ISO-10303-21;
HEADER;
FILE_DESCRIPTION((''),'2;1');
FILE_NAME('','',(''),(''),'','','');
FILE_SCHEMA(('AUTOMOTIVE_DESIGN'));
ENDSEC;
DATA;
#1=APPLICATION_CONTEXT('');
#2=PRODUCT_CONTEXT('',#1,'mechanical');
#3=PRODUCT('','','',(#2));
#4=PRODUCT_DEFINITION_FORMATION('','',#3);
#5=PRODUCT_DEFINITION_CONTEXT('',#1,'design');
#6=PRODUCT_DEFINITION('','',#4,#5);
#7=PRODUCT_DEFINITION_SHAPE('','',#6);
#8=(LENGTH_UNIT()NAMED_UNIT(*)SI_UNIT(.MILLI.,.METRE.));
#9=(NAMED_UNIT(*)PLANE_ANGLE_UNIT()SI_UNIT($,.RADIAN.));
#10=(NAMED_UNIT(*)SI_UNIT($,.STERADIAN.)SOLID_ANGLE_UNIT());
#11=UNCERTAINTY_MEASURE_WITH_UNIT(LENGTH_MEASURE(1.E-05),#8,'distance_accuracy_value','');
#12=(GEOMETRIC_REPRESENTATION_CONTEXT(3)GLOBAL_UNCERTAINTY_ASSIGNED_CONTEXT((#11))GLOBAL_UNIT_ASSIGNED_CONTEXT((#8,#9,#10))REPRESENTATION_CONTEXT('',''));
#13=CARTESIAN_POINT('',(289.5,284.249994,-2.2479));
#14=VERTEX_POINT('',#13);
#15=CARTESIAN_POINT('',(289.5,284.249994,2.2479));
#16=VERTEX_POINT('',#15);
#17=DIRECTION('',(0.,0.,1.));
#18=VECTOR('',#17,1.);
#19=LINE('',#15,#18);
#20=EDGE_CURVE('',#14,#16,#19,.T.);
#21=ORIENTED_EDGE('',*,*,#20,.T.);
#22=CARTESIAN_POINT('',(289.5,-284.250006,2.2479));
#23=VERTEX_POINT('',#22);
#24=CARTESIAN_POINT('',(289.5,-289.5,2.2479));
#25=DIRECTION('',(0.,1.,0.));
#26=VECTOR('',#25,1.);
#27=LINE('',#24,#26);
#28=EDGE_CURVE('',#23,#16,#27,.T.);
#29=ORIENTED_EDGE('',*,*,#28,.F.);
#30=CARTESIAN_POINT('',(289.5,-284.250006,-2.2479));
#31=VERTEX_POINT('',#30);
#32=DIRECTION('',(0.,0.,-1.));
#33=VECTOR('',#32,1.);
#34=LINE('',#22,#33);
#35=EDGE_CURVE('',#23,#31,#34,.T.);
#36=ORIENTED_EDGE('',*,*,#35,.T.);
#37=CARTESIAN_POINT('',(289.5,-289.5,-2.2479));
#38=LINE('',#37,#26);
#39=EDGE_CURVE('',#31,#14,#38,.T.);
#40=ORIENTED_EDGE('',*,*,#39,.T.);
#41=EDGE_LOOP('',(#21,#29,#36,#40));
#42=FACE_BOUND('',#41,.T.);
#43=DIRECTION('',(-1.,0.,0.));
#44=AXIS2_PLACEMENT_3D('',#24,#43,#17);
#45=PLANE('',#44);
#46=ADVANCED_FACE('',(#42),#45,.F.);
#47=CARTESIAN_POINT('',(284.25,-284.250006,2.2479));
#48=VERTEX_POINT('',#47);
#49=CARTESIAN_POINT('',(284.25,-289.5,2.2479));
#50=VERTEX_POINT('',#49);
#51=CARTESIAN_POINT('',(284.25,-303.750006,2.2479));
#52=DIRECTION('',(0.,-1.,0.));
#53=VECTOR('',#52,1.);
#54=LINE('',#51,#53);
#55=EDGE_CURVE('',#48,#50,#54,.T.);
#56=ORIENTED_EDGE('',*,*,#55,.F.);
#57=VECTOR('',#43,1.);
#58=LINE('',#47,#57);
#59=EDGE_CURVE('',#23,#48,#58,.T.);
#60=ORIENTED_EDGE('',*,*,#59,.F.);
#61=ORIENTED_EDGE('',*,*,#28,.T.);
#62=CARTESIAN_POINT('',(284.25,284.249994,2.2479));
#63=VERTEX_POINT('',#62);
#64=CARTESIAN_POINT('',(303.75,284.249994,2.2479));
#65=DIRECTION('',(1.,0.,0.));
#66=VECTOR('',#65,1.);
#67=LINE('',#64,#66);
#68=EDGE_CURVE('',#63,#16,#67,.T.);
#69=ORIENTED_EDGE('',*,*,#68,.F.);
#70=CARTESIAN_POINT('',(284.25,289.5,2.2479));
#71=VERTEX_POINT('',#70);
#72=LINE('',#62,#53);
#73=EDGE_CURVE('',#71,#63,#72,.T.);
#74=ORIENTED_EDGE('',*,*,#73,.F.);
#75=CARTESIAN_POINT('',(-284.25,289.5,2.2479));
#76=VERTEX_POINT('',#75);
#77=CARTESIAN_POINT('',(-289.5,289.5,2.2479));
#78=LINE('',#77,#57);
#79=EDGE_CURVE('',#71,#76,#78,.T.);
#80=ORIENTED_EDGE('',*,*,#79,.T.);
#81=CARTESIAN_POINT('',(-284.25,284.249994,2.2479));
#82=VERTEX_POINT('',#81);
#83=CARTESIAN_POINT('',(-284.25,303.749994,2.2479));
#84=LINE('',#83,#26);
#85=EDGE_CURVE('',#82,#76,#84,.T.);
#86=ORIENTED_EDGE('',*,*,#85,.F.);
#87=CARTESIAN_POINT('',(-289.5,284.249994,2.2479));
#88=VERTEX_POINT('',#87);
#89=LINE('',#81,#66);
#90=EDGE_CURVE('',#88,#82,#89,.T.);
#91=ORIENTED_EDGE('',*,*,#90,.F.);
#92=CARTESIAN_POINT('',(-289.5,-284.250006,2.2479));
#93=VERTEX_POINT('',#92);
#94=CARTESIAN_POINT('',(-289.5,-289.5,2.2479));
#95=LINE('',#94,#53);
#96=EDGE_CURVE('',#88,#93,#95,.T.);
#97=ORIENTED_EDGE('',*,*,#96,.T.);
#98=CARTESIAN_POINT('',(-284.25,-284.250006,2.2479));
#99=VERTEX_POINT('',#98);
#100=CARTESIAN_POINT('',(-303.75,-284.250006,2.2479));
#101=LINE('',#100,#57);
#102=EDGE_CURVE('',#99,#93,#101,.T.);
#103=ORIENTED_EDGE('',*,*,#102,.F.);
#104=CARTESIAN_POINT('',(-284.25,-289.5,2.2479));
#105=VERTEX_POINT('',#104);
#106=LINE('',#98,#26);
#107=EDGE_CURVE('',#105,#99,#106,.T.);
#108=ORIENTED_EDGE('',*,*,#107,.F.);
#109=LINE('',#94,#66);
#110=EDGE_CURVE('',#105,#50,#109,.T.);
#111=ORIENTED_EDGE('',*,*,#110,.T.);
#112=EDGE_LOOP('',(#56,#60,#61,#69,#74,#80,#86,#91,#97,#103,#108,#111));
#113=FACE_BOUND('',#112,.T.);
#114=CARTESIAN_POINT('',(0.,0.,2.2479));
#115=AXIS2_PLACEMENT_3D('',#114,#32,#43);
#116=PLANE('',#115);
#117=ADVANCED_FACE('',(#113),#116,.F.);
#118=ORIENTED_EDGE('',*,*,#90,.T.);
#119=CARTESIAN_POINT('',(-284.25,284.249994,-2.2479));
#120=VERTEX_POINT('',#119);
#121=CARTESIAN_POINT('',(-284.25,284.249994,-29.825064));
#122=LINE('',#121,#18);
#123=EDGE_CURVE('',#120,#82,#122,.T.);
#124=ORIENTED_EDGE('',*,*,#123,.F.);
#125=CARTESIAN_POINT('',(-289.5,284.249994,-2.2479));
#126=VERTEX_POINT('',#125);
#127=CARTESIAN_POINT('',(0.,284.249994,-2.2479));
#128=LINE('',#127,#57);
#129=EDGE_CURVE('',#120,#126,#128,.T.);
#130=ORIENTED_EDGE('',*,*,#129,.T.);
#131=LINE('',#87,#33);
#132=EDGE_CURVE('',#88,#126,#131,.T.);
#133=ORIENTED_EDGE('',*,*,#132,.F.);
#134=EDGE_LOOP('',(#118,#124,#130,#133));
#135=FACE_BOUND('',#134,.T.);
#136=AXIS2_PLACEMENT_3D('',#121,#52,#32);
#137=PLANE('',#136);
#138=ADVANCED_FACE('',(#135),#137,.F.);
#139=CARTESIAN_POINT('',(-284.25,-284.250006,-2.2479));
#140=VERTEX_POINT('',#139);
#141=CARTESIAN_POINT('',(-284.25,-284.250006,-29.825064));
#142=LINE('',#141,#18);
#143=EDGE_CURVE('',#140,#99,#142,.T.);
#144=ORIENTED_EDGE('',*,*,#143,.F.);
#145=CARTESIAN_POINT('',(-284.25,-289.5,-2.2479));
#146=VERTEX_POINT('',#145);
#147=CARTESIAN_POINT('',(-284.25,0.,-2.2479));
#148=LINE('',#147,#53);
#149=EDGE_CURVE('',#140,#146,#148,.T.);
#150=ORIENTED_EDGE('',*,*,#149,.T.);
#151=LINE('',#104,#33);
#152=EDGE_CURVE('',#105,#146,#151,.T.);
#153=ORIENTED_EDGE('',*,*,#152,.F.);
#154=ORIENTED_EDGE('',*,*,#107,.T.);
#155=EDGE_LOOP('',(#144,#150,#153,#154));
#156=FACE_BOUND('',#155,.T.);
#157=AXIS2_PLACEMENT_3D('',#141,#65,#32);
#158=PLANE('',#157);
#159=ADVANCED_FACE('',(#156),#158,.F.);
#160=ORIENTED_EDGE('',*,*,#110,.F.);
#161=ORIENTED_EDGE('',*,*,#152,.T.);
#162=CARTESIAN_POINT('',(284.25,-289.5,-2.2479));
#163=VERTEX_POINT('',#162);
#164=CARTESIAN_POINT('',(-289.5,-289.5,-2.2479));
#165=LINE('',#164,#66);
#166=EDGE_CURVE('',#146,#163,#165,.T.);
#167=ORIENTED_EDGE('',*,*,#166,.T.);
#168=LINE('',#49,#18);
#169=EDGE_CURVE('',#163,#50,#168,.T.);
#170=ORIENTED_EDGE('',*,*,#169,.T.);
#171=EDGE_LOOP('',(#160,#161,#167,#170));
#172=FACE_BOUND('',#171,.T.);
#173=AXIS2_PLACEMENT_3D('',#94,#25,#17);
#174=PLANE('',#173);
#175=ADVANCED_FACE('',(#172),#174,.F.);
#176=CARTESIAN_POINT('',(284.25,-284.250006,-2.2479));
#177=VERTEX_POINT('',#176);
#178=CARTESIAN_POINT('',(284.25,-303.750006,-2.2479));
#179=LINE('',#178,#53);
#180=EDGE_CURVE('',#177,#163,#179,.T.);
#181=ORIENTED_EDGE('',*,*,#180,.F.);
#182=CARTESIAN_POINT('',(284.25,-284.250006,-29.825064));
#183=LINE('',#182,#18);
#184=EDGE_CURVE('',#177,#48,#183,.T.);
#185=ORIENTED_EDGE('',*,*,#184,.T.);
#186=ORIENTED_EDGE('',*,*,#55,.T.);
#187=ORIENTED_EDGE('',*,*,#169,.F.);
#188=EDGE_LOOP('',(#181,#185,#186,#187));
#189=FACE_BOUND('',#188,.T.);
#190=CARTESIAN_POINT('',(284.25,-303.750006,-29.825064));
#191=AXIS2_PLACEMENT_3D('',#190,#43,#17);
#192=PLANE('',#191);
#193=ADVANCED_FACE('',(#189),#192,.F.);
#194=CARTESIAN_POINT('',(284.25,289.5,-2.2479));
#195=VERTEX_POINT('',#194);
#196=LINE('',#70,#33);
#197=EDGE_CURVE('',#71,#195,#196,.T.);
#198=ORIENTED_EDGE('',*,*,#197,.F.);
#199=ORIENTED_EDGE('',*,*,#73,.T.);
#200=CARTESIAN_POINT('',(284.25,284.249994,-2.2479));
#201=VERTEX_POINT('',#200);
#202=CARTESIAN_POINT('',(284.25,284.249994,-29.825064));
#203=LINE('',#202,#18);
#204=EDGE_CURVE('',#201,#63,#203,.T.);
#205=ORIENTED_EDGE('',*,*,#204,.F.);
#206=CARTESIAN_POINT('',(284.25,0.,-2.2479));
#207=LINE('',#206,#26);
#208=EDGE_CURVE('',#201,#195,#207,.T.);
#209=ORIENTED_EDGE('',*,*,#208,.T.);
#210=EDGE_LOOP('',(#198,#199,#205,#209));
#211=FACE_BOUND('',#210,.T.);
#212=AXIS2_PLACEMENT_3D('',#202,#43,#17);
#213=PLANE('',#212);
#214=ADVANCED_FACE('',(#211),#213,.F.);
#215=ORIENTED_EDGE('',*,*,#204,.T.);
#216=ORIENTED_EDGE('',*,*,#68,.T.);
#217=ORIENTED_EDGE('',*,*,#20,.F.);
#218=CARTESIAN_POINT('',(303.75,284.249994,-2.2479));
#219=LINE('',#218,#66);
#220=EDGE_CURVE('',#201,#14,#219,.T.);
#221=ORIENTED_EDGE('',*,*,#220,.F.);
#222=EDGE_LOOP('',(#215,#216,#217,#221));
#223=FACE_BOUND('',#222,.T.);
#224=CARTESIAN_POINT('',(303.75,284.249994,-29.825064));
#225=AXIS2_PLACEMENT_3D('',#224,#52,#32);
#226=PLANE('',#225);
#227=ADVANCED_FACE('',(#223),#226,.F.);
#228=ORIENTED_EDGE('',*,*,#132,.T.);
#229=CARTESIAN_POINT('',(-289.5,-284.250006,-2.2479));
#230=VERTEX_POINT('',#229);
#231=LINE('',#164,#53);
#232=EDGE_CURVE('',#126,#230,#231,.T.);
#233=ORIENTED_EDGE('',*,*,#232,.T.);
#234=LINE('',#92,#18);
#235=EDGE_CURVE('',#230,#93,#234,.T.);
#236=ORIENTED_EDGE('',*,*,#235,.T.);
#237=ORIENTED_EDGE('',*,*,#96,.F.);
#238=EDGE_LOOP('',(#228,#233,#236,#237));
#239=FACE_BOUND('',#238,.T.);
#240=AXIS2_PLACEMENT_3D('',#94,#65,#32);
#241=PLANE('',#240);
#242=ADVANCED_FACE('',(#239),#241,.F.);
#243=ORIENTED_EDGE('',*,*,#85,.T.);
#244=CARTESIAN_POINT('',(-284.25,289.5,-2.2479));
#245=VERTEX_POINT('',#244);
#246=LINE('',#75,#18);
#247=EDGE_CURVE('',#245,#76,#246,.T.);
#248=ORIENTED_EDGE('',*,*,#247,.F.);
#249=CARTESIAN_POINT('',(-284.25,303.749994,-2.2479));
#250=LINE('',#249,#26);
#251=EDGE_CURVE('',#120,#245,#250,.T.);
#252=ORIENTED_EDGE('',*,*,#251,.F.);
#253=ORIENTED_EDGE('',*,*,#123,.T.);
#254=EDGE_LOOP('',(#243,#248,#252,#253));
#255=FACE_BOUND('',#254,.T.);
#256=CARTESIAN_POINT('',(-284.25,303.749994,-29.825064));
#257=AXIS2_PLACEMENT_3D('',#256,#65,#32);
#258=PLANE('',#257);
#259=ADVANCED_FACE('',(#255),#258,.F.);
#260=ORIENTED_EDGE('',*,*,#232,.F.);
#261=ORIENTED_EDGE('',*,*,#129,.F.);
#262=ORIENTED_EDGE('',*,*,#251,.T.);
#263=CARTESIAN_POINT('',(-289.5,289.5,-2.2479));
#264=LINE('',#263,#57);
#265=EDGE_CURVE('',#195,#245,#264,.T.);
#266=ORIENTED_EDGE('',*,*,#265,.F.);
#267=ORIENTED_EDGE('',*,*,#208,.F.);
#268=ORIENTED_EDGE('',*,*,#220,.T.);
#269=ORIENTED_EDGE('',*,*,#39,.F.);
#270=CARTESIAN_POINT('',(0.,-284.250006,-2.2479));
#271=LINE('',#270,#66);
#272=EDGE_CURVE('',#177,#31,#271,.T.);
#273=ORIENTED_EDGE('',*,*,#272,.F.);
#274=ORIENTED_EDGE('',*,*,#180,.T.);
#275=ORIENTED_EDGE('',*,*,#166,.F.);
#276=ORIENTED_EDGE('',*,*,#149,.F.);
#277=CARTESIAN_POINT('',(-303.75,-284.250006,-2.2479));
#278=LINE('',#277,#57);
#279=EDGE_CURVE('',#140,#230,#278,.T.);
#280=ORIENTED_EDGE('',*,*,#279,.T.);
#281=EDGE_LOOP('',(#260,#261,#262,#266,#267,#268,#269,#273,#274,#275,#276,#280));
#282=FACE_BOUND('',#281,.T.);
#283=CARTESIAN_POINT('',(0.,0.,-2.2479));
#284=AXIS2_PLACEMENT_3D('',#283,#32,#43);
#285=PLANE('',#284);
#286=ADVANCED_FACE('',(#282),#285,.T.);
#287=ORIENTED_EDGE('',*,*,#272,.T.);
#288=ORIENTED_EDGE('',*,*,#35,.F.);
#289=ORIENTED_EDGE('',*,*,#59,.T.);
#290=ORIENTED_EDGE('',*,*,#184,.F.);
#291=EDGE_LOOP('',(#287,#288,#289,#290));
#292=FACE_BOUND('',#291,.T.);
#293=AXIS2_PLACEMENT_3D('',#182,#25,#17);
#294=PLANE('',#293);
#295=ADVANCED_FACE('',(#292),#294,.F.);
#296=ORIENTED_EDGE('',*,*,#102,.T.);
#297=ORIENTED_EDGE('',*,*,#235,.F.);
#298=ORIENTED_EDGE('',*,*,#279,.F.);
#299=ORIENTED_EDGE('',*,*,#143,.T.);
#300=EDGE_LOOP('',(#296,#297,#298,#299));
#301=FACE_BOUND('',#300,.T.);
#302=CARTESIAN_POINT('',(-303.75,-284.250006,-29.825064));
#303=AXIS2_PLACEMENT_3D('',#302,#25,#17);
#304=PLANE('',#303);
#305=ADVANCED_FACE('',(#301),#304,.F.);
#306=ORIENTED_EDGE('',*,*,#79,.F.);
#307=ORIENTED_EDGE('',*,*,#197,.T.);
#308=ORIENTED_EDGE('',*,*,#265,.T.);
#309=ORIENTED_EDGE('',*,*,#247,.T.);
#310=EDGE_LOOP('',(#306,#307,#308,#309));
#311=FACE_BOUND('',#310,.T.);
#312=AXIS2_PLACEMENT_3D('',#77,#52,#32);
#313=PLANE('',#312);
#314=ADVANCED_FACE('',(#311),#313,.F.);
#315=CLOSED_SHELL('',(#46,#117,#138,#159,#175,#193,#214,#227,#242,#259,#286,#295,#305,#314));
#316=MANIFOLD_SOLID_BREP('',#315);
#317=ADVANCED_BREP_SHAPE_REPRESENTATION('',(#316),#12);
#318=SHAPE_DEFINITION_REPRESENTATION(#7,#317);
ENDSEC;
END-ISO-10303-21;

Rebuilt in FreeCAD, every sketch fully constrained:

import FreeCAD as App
import Part
import Sketcher
from FreeCAD import Vector


def add_polygon(sketch, points):
    """Adds a closed chain of lines whose ends are joined by coincident constraints."""
    first, n = sketch.GeometryCount, len(points)
    for a, b in zip(points, points[1:] + points[:1]):
        sketch.addGeometry(Part.LineSegment(App.Vector(*a, 0), App.Vector(*b, 0)), False)
    for i in range(n):
        sketch.addConstraint(Sketcher.Constraint("Coincident", first + i, 2, first + (i + 1) % n, 1))

doc = App.newDocument("Part")
body = doc.addObject("PartDesign::Body", "Body")

# Sketch on XY plane
sketch1 = body.newObject("Sketcher::SketchObject", "Sketch")
sketch1.AttachmentSupport = (doc.getObject("XY_Plane"), [""])
sketch1.MapMode = "FlatFace"
add_polygon(sketch1, [(-290, 290), (-290, -290), (290, -290), (290, 290)])  # lines 0-3
sketch1.addConstraint([
    Sketcher.Constraint("Vertical", 0),
    Sketcher.Constraint("Horizontal", 1),
    Sketcher.Constraint("Vertical", 2),
    Sketcher.Constraint("Horizontal", 3),
    Sketcher.Constraint("Symmetric", 0, 2, 2, 2, -1, 1),
    Sketcher.Constraint("Equal", 3, 0),
    Sketcher.Constraint("DistanceX", 1, 1, 1, 2, 579.0),
])
pad1 = body.newObject("PartDesign::Pad", "Pad")
pad1.Profile = sketch1
pad1.Length = 4.4958
pad1.Midplane = True

# Sketch on XY plane
sketch2 = body.newObject("Sketcher::SketchObject", "Sketch001")
sketch2.AttachmentSupport = (doc.getObject("XY_Plane"), [""])
sketch2.MapMode = "FlatFace"
sketch2.AttachmentOffset = App.Placement(Vector(0, 0, 2.2479), App.Rotation())
add_polygon(sketch2, [(-284, 284), (-284, 304), (-304, 284)])  # lines 0-2
add_polygon(sketch2, [(-284, -284), (-304, -284), (-284, -304)])  # lines 3-5
add_polygon(sketch2, [(284, -284), (284, -304), (304, -284)])  # lines 6-8
add_polygon(sketch2, [(284, 284), (304, 284), (284, 304)])  # lines 9-11
sketch2.addConstraint([
    Sketcher.Constraint("Vertical", 0),
    Sketcher.Constraint("Horizontal", 2),
    Sketcher.Constraint("Horizontal", 3),
    Sketcher.Constraint("Vertical", 5),
    Sketcher.Constraint("Vertical", 6),
    Sketcher.Constraint("Horizontal", 8),
    Sketcher.Constraint("Horizontal", 9),
    Sketcher.Constraint("Vertical", 11),
    Sketcher.Constraint("Symmetric", 4, 2, 6, 2, -2),
    Sketcher.Constraint("Symmetric", 3, 2, 7, 2, -2),
    Sketcher.Constraint("Symmetric", 1, 2, 9, 2, -2),
    Sketcher.Constraint("Symmetric", 0, 2, 10, 2, -2),
    Sketcher.Constraint("Perpendicular", 1, 4),
    Sketcher.Constraint("Perpendicular", 4, 7),
    Sketcher.Constraint("Vertical", 1, 2, 3, 2),
    Sketcher.Constraint("Vertical", 2, 2, 4, 2),
    Sketcher.Constraint("DistanceX", 2, 1, 2, 2, 19.5),
    Sketcher.Constraint("DistanceY", 3, 2, 0, 2, 588.0),
    Sketcher.Constraint("DistanceX", 3, 2, 6, 2, 588.0),
    Sketcher.Constraint("DistanceY", -1, 1, 0, 2, 303.749994),
])
pocket1 = body.newObject("PartDesign::Pocket", "Pocket")
pocket1.Profile = sketch2
pocket1.Length = 4.4958

doc.recompute()
